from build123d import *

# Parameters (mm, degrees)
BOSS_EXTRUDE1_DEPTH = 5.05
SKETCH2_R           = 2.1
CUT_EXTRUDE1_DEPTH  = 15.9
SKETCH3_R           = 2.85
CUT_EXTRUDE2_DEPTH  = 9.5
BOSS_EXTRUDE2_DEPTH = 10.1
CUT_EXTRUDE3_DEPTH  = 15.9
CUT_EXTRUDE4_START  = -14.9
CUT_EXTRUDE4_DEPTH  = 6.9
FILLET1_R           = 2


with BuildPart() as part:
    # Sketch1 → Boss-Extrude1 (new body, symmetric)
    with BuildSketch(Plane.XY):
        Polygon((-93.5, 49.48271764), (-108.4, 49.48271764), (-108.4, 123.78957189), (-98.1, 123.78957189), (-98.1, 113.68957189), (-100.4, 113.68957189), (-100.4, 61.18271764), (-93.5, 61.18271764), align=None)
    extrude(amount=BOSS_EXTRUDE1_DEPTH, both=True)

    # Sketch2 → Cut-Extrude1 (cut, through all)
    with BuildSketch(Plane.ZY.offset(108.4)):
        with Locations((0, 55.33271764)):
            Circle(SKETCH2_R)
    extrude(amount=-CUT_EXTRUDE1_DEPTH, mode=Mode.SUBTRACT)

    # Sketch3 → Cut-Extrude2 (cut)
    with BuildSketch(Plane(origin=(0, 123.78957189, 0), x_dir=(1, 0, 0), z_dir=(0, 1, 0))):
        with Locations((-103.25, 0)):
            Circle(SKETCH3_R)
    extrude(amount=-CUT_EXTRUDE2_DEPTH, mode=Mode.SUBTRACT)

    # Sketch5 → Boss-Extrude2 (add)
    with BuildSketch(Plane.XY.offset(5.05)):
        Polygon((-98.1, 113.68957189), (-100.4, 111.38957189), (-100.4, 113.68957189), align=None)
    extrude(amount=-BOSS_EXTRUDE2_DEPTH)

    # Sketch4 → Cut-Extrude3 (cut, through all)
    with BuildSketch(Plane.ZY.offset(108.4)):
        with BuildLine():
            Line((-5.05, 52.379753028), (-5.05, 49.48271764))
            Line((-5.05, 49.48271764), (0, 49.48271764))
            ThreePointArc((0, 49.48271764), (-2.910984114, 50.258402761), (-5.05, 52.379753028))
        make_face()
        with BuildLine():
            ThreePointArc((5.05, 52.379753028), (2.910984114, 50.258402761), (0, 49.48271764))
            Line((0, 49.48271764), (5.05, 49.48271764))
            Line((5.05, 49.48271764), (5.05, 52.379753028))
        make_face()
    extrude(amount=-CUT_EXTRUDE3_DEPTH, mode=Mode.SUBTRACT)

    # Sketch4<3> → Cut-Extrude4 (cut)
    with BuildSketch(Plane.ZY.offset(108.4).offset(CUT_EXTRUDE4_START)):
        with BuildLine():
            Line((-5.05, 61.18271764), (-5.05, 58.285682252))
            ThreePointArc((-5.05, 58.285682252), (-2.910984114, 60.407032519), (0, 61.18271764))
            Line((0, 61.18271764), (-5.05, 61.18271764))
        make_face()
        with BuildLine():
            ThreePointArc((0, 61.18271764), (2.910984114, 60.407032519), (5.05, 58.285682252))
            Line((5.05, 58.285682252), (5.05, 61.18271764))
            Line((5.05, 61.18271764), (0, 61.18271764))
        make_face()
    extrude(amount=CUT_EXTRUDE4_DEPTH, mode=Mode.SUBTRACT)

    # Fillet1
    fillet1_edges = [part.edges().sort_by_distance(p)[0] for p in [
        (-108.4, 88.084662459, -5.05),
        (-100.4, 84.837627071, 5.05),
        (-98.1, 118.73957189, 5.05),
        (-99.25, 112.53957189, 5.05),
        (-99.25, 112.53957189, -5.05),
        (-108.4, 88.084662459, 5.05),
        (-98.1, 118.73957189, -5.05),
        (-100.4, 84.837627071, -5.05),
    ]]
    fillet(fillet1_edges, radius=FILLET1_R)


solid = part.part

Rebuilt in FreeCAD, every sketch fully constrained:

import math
import FreeCAD as App
import Part
import Sketcher
Q = App.Units.Quantity


def edges_at(feature, points):
    """Names of the edges that pass closest to the given points."""
    edges = feature.Shape.Edges
    near = lambda p: min(range(len(edges)), key=lambda i: edges[i].distToShape(Part.Vertex(*p))[0])
    return sorted({f"Edge{near(p) + 1}" for p in points})

doc = App.newDocument("Part")
body = doc.addObject("PartDesign::Body", "Body")

# Sketch on XY plane
sketch1 = body.newObject("Sketcher::SketchObject", "Sketch")
sketch1.AttachmentSupport = (doc.getObject("XY_Plane"), [""])
sketch1.MapMode = "FlatFace"
sketch1.addGeometry([
    Part.LineSegment(App.Vector(-108.4, 49.5, 0), App.Vector(-93.5, 49.5, 0)),  # 0
    Part.LineSegment(App.Vector(-93.5, 49.5, 0), App.Vector(-93.5, 61.2, 0)),  # 1
    Part.LineSegment(App.Vector(-93.5, 61.2, 0), App.Vector(-100.4, 61.2, 0)),  # 2
    Part.LineSegment(App.Vector(-100.4, 61.2, 0), App.Vector(-100.4, 113.7, 0)),  # 3
    Part.LineSegment(App.Vector(-100.4, 113.7, 0), App.Vector(-98.1, 113.7, 0)),  # 4
    Part.LineSegment(App.Vector(-98.1, 113.7, 0), App.Vector(-98.1, 123.8, 0)),  # 5
    Part.LineSegment(App.Vector(-98.1, 123.8, 0), App.Vector(-108.4, 123.8, 0)),  # 6
    Part.LineSegment(App.Vector(-108.4, 123.8, 0), App.Vector(-108.4, 49.5, 0)),  # 7
], False)
sketch1.addConstraint([
    Sketcher.Constraint("Coincident", 0, 2, 1, 1),
    Sketcher.Constraint("Coincident", 1, 2, 2, 1),
    Sketcher.Constraint("Coincident", 2, 2, 3, 1),
    Sketcher.Constraint("Coincident", 3, 2, 4, 1),
    Sketcher.Constraint("Coincident", 4, 2, 5, 1),
    Sketcher.Constraint("Coincident", 5, 2, 6, 1),
    Sketcher.Constraint("Coincident", 6, 2, 7, 1),
    Sketcher.Constraint("Coincident", 7, 2, 0, 1),
    Sketcher.Constraint("Horizontal", 0),
    Sketcher.Constraint("Vertical", 1),
    Sketcher.Constraint("Horizontal", 2),
    Sketcher.Constraint("Vertical", 3),
    Sketcher.Constraint("Horizontal", 4),
    Sketcher.Constraint("Vertical", 5),
    Sketcher.Constraint("Horizontal", 6),
    Sketcher.Constraint("Vertical", 7),
    Sketcher.Constraint("DistanceX", 0, 1, 0, 2, Q("14.9 mm")),
    Sketcher.Constraint("DistanceX", 2, 2, 2, 1, Q("6.9 mm")),
    Sketcher.Constraint("DistanceX", 4, 1, 4, 2, Q("2.3 mm")),
    Sketcher.Constraint("DistanceY", 1, 1, 1, 2, Q("11.7 mm")),
    Sketcher.Constraint("DistanceY", 5, 1, 5, 2, Q("10.1 mm")),
    Sketcher.Constraint("DistanceX", 0, 2, -1, 1, Q("93.5 mm")),
    Sketcher.Constraint("DistanceY", 3, 1, 3, 2, Q("52.506854 mm")),
    Sketcher.Constraint("DistanceY", -1, 1, 3, 2, Q("113.689572 mm")),
])
pad1 = body.newObject("PartDesign::Pad", "Pad")
pad1.Profile = sketch1
pad1.Length = 10.1
pad1.Midplane = True

# Sketch on YZ plane
sketch2 = body.newObject("Sketcher::SketchObject", "Sketch001")
sketch2.AttachmentSupport = (doc.getObject("YZ_Plane"), [""])
sketch2.MapMode = "FlatFace"
sketch2.AttachmentOffset = App.Placement(App.Vector(0, 0, -108.4), App.Rotation())
sketch2.addGeometry(Part.Circle(App.Vector(55.3, 0, 0), App.Vector(0, 0, 1), 2.1), False)
sketch2.addConstraint([
    Sketcher.Constraint("PointOnObject", 0, 3, -1),
    Sketcher.Constraint("Diameter", 0, Q("4.2 mm")),
    Sketcher.Constraint("DistanceX", -1, 1, 0, 3, Q("55.332718 mm")),
])
pocket1 = body.newObject("PartDesign::Pocket", "Pocket")
pocket1.Profile = sketch2
pocket1.Type = "ThroughAll"
pocket1.Reversed = True

# Sketch on XZ plane
sketch3 = body.newObject("Sketcher::SketchObject", "Sketch002")
sketch3.AttachmentSupport = (doc.getObject("XZ_Plane"), [""])
sketch3.MapMode = "FlatFace"
sketch3.AttachmentOffset = App.Placement(App.Vector(0, 0, -123.789572), App.Rotation())
sketch3.addGeometry(Part.Circle(App.Vector(-103.2, 0, 0), App.Vector(0, 0, 1), 2.9), False)
sketch3.addConstraint([
    Sketcher.Constraint("PointOnObject", 0, 3, -1),
    Sketcher.Constraint("Diameter", 0, Q("5.7 mm")),
    Sketcher.Constraint("DistanceX", 0, 3, -1, 1, Q("103.25 mm")),
])
pocket2 = body.newObject("PartDesign::Pocket", "Pocket001")
pocket2.Profile = sketch3
pocket2.Length = 9.5
pocket2.Reversed = True

# Sketch on XY plane
sketch4 = body.newObject("Sketcher::SketchObject", "Sketch003")
sketch4.AttachmentSupport = (doc.getObject("XY_Plane"), [""])
sketch4.MapMode = "FlatFace"
sketch4.AttachmentOffset = App.Placement(App.Vector(0, 0, 5.05), App.Rotation())
sketch4.addGeometry([
    Part.LineSegment(App.Vector(-100.4, 111.4, 0), App.Vector(-98.1, 113.7, 0)),
    Part.LineSegment(App.Vector(-98.1, 113.7, 0), App.Vector(-100.4, 113.7, 0)),
    Part.LineSegment(App.Vector(-100.4, 113.7, 0), App.Vector(-100.4, 111.4, 0)),
], False)
sketch4.addConstraint([
    Sketcher.Constraint("Coincident", 0, 2, 1, 1),
    Sketcher.Constraint("Coincident", 1, 2, 2, 1),
    Sketcher.Constraint("Coincident", 2, 2, 0, 1),
    Sketcher.Constraint("Horizontal", 1),
    Sketcher.Constraint("Vertical", 2),
    Sketcher.Constraint("Equal", 1, 2),
    Sketcher.Constraint("DistanceX", 1, 2, 1, 1, Q("2.3 mm")),
    Sketcher.Constraint("DistanceX", 0, 2, -1, 1, Q("98.1 mm")),
    Sketcher.Constraint("DistanceY", -1, 1, 0, 2, Q("113.689572 mm")),
])
pad2 = body.newObject("PartDesign::Pad", "Pad001")
pad2.Profile = sketch4
pad2.Length = 10.1
pad2.Reversed = True

# Sketch on YZ plane
sketch5 = body.newObject("Sketcher::SketchObject", "Sketch004")
sketch5.AttachmentSupport = (doc.getObject("YZ_Plane"), [""])
sketch5.MapMode = "FlatFace"
sketch5.AttachmentOffset = App.Placement(App.Vector(0, 0, -108.4), App.Rotation())
sketch5.addGeometry([
    Part.LineSegment(App.Vector(52.4, -5, 0), App.Vector(49.5, -5, 0)),  # 0
    Part.LineSegment(App.Vector(49.5, -5, 0), App.Vector(49.5, 0, 0)),  # 1
    Part.ArcOfCircle(Part.Circle(App.Vector(55.3, 0, 0), App.Vector(0, 0, 1), 5.8), math.radians(180), math.radians(240)),  # 2
    Part.ArcOfCircle(Part.Circle(App.Vector(55.3, 0, 0), App.Vector(0, 0, 1), 5.8), math.radians(120), math.radians(180)),  # 3
    Part.LineSegment(App.Vector(49.5, 0, 0), App.Vector(49.5, 5, 0)),  # 4
    Part.LineSegment(App.Vector(49.5, 5, 0), App.Vector(52.4, 5, 0)),  # 5
], False)
sketch5.addConstraint([
    Sketcher.Constraint("Coincident", 0, 2, 1, 1),
    Sketcher.Constraint("Tangent", 1, 2, 2, 1),
    Sketcher.Constraint("Coincident", 2, 2, 0, 1),
    Sketcher.Constraint("Tangent", 3, 2, 4, 1),
    Sketcher.Constraint("Coincident", 4, 2, 5, 1),
    Sketcher.Constraint("Coincident", 5, 2, 3, 1),
    Sketcher.Constraint("Horizontal", 0),
    Sketcher.Constraint("Vertical", 1),
    Sketcher.Constraint("Vertical", 4),
    Sketcher.Constraint("Horizontal", 5),
    Sketcher.Constraint("Coincident", 3, 3, 2, 3),
    Sketcher.Constraint("Equal", 2, 3),
    Sketcher.Constraint("Symmetric", 2, 2, 5, 2, -1),
    Sketcher.Constraint("Radius", 2, Q("5.85 mm")),
    Sketcher.Constraint("DistanceY", 1, 1, 1, 2, Q("5.05 mm")),
    Sketcher.Constraint("DistanceX", -1, 1, 2, 3, Q("55.332718 mm")),
])
pocket3 = body.newObject("PartDesign::Pocket", "Pocket002")
pocket3.Profile = sketch5
pocket3.Type = "ThroughAll"
pocket3.Reversed = True

# Sketch on YZ plane
sketch6 = body.newObject("Sketcher::SketchObject", "Sketch005")
sketch6.AttachmentSupport = (doc.getObject("YZ_Plane"), [""])
sketch6.MapMode = "FlatFace"
sketch6.AttachmentOffset = App.Placement(App.Vector(0, 0, -93.5), App.Rotation())
sketch6.addGeometry([
    Part.LineSegment(App.Vector(61.2, -5, 0), App.Vector(58.3, -5, 0)),  # 0
    Part.ArcOfCircle(Part.Circle(App.Vector(55.3, 0, 0), App.Vector(0, 0, 1), 5.8), math.radians(-60), math.radians(0)),  # 1
    Part.LineSegment(App.Vector(61.2, 0, 0), App.Vector(61.2, -5, 0)),  # 2
    Part.ArcOfCircle(Part.Circle(App.Vector(55.3, 0, 0), App.Vector(0, 0, 1), 5.8), math.radians(0), math.radians(60)),  # 3
    Part.LineSegment(App.Vector(58.3, 5, 0), App.Vector(61.2, 5, 0)),  # 4
    Part.LineSegment(App.Vector(61.2, 5, 0), App.Vector(61.2, 0, 0)),  # 5
], False)
sketch6.addConstraint([
    Sketcher.Constraint("Coincident", 0, 2, 1, 1),
    Sketcher.Constraint("Tangent", 1, 2, 2, 1),
    Sketcher.Constraint("Coincident", 2, 2, 0, 1),
    Sketcher.Constraint("Coincident", 3, 2, 4, 1),
    Sketcher.Constraint("Coincident", 4, 2, 5, 1),
    Sketcher.Constraint("Tangent", 5, 2, 3, 1),
    Sketcher.Constraint("Horizontal", 0),
    Sketcher.Constraint("Vertical", 2),
    Sketcher.Constraint("Horizontal", 4),
    Sketcher.Constraint("Vertical", 5),
    Sketcher.Constraint("Coincident", 3, 3, 1, 3),
    Sketcher.Constraint("Equal", 1, 3),
    Sketcher.Constraint("Symmetric", 0, 2, 3, 2, -1),
    Sketcher.Constraint("Radius", 1, Q("5.85 mm")),
    Sketcher.Constraint("DistanceY", 2, 2, 2, 1, Q("5.05 mm")),
    Sketcher.Constraint("DistanceX", -1, 1, 1, 3, Q("55.332718 mm")),
])
pocket4 = body.newObject("PartDesign::Pocket", "Pocket003")
pocket4.Profile = sketch6
pocket4.Length = 6.9
doc.recompute()

fillet = body.newObject("PartDesign::Fillet", "Fillet")
fillet.Base = (pocket4, edges_at(pocket4, [
    (-108.4, 88.085, -5.05),
    (-100.4, 84.838, 5.05),
    (-98.1, 118.74, 5.05),
    (-99.25, 112.54, 5.05),
    (-99.25, 112.54, -5.05),
    (-108.4, 88.085, 5.05),
    (-98.1, 118.74, -5.05),
    (-100.4, 84.838, -5.05),
]))
fillet.Radius = 2

doc.recompute()
